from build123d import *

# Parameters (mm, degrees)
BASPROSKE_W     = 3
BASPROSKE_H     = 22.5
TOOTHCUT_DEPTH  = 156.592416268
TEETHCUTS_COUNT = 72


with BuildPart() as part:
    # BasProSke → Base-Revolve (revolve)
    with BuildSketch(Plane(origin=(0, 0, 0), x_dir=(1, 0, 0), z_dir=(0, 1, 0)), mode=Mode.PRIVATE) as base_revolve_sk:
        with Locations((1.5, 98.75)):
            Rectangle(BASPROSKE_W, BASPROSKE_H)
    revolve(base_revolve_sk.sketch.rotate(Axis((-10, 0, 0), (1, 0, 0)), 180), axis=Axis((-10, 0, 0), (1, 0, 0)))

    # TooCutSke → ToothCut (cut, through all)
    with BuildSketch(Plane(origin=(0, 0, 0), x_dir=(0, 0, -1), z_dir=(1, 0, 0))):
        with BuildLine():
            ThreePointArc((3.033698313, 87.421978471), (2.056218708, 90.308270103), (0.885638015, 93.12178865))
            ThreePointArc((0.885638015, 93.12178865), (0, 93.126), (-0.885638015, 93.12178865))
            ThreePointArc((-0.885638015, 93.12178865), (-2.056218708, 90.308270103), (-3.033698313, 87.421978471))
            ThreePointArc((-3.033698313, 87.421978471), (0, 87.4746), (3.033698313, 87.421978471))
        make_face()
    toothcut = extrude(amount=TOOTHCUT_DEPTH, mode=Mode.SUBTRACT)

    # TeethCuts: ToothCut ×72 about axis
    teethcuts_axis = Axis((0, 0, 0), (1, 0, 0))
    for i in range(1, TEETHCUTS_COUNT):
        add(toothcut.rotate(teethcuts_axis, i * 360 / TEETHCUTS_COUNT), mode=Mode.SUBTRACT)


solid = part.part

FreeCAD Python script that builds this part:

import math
import FreeCAD as App
import Part
import Sketcher
Q = App.Units.Quantity

doc = App.newDocument("Part")
body = doc.addObject("PartDesign::Body", "Body")

# Sketch on XZ plane
sketch1 = body.newObject("Sketcher::SketchObject", "Sketch")
sketch1.AttachmentSupport = (doc.getObject("XZ_Plane"), [""])
sketch1.MapMode = "FlatFace"
sketch1.addGeometry(Part.LineSegment(App.Vector(0, -110, 0), App.Vector(0, -87.5, 0)), False)
sketch1.addGeometry(Part.LineSegment(App.Vector(0, -87.5, 0), App.Vector(3, -87.5, 0)), False)
sketch1.addGeometry(Part.LineSegment(App.Vector(3, -87.5, 0), App.Vector(3, -110, 0)), False)
sketch1.addGeometry(Part.LineSegment(App.Vector(3, -110, 0), App.Vector(0, -110, 0)), False)
sketch1.addConstraint(Sketcher.Constraint("Coincident", 0, 2, 1, 1))
sketch1.addConstraint(Sketcher.Constraint("Coincident", 1, 2, 2, 1))
sketch1.addConstraint(Sketcher.Constraint("Coincident", 2, 2, 3, 1))
sketch1.addConstraint(Sketcher.Constraint("Coincident", 3, 2, 0, 1))
sketch1.addConstraint(Sketcher.Constraint("Vertical", 0))
sketch1.addConstraint(Sketcher.Constraint("Horizontal", 1))
sketch1.addConstraint(Sketcher.Constraint("Vertical", 2))
sketch1.addConstraint(Sketcher.Constraint("Horizontal", 3))
sketch1.addConstraint(Sketcher.Constraint("PointOnObject", 0, 2, -2))
sketch1.addConstraint(Sketcher.Constraint("DistanceX", 1, 1, 1, 2, Q("3 mm")))
sketch1.addConstraint(Sketcher.Constraint("DistanceY", 0, 1, 0, 2, Q("22.5 mm")))
sketch1.addConstraint(Sketcher.Constraint("DistanceY", 2, 2, -1, 1, Q("110 mm")))
revolution = body.newObject("PartDesign::Revolution", "Revolution")
revolution.Profile = sketch1
revolution.ReferenceAxis = (sketch1, ["H_Axis"])
revolution.Angle = 360

# Sketch on YZ plane
sketch2 = body.newObject("Sketcher::SketchObject", "Sketch001")
sketch2.AttachmentSupport = (doc.getObject("YZ_Plane"), [""])
sketch2.MapMode = "FlatFace"
sketch2.addGeometry(Part.ArcOfCircle(Part.Circle(App.Vector(74.4, 40.1, 0), App.Vector(0, 0, 1), 45), math.radians(-73.23), math.radians(-65.47)), False)
sketch2.addGeometry(Part.ArcOfCircle(Part.Circle(App.Vector(0, 0, 0), App.Vector(0, 0, 1), 93.1), math.radians(-0.54), math.radians(0.54)), False)
sketch2.addGeometry(Part.ArcOfCircle(Part.Circle(App.Vector(74.4, -40.1, 0), App.Vector(0, 0, 1), 45), math.radians(65.47), math.radians(73.23)), False)
sketch2.addGeometry(Part.ArcOfCircle(Part.Circle(App.Vector(0, 0, 0), App.Vector(0, 0, 1), 87.5), math.radians(-1.99), math.radians(1.99)), False)
sketch2.addConstraint(Sketcher.Constraint("Coincident", 0, 2, 1, 1))
sketch2.addConstraint(Sketcher.Constraint("Coincident", 1, 2, 2, 1))
sketch2.addConstraint(Sketcher.Constraint("Coincident", 2, 2, 3, 2))
sketch2.addConstraint(Sketcher.Constraint("Coincident", 3, 1, 0, 1))
sketch2.addConstraint(Sketcher.Constraint("Coincident", 1, 3, -1, 1))
sketch2.addConstraint(Sketcher.Constraint("Coincident", 3, 3, -1, 1))
sketch2.addConstraint(Sketcher.Constraint("Equal", 0, 2))
sketch2.addConstraint(Sketcher.Constraint("Symmetric", 0, 3, 2, 3, -1))
sketch2.addConstraint(Sketcher.Constraint("Radius", 0, Q("45 mm")))
sketch2.addConstraint(Sketcher.Constraint("Radius", 3, Q("87.474601 mm")))
sketch2.addConstraint(Sketcher.Constraint("Radius", 1, Q("93.126008 mm")))
sketch2.addConstraint(Sketcher.Constraint("DistanceY", -1, 1, 2, 2, Q("3.033698 mm")))
sketch2.addConstraint(Sketcher.Constraint("DistanceX", 0, 3, 2, 2, Q("12.983102 mm")))
pocket1 = body.newObject("PartDesign::Pocket", "Pocket")
pocket1.Profile = sketch2
pocket1.Type = "ThroughAll"
pocket1.Reversed = True
doc.recompute()

polarpattern = body.newObject("PartDesign::PolarPattern", "PolarPattern")
polarpattern.Originals = [pocket1]
polarpattern.Axis = (doc.getObject("X_Axis"), [""])
polarpattern.Angle = 360
polarpattern.Occurrences = 72
body.Tip = polarpattern

doc.recompute()
